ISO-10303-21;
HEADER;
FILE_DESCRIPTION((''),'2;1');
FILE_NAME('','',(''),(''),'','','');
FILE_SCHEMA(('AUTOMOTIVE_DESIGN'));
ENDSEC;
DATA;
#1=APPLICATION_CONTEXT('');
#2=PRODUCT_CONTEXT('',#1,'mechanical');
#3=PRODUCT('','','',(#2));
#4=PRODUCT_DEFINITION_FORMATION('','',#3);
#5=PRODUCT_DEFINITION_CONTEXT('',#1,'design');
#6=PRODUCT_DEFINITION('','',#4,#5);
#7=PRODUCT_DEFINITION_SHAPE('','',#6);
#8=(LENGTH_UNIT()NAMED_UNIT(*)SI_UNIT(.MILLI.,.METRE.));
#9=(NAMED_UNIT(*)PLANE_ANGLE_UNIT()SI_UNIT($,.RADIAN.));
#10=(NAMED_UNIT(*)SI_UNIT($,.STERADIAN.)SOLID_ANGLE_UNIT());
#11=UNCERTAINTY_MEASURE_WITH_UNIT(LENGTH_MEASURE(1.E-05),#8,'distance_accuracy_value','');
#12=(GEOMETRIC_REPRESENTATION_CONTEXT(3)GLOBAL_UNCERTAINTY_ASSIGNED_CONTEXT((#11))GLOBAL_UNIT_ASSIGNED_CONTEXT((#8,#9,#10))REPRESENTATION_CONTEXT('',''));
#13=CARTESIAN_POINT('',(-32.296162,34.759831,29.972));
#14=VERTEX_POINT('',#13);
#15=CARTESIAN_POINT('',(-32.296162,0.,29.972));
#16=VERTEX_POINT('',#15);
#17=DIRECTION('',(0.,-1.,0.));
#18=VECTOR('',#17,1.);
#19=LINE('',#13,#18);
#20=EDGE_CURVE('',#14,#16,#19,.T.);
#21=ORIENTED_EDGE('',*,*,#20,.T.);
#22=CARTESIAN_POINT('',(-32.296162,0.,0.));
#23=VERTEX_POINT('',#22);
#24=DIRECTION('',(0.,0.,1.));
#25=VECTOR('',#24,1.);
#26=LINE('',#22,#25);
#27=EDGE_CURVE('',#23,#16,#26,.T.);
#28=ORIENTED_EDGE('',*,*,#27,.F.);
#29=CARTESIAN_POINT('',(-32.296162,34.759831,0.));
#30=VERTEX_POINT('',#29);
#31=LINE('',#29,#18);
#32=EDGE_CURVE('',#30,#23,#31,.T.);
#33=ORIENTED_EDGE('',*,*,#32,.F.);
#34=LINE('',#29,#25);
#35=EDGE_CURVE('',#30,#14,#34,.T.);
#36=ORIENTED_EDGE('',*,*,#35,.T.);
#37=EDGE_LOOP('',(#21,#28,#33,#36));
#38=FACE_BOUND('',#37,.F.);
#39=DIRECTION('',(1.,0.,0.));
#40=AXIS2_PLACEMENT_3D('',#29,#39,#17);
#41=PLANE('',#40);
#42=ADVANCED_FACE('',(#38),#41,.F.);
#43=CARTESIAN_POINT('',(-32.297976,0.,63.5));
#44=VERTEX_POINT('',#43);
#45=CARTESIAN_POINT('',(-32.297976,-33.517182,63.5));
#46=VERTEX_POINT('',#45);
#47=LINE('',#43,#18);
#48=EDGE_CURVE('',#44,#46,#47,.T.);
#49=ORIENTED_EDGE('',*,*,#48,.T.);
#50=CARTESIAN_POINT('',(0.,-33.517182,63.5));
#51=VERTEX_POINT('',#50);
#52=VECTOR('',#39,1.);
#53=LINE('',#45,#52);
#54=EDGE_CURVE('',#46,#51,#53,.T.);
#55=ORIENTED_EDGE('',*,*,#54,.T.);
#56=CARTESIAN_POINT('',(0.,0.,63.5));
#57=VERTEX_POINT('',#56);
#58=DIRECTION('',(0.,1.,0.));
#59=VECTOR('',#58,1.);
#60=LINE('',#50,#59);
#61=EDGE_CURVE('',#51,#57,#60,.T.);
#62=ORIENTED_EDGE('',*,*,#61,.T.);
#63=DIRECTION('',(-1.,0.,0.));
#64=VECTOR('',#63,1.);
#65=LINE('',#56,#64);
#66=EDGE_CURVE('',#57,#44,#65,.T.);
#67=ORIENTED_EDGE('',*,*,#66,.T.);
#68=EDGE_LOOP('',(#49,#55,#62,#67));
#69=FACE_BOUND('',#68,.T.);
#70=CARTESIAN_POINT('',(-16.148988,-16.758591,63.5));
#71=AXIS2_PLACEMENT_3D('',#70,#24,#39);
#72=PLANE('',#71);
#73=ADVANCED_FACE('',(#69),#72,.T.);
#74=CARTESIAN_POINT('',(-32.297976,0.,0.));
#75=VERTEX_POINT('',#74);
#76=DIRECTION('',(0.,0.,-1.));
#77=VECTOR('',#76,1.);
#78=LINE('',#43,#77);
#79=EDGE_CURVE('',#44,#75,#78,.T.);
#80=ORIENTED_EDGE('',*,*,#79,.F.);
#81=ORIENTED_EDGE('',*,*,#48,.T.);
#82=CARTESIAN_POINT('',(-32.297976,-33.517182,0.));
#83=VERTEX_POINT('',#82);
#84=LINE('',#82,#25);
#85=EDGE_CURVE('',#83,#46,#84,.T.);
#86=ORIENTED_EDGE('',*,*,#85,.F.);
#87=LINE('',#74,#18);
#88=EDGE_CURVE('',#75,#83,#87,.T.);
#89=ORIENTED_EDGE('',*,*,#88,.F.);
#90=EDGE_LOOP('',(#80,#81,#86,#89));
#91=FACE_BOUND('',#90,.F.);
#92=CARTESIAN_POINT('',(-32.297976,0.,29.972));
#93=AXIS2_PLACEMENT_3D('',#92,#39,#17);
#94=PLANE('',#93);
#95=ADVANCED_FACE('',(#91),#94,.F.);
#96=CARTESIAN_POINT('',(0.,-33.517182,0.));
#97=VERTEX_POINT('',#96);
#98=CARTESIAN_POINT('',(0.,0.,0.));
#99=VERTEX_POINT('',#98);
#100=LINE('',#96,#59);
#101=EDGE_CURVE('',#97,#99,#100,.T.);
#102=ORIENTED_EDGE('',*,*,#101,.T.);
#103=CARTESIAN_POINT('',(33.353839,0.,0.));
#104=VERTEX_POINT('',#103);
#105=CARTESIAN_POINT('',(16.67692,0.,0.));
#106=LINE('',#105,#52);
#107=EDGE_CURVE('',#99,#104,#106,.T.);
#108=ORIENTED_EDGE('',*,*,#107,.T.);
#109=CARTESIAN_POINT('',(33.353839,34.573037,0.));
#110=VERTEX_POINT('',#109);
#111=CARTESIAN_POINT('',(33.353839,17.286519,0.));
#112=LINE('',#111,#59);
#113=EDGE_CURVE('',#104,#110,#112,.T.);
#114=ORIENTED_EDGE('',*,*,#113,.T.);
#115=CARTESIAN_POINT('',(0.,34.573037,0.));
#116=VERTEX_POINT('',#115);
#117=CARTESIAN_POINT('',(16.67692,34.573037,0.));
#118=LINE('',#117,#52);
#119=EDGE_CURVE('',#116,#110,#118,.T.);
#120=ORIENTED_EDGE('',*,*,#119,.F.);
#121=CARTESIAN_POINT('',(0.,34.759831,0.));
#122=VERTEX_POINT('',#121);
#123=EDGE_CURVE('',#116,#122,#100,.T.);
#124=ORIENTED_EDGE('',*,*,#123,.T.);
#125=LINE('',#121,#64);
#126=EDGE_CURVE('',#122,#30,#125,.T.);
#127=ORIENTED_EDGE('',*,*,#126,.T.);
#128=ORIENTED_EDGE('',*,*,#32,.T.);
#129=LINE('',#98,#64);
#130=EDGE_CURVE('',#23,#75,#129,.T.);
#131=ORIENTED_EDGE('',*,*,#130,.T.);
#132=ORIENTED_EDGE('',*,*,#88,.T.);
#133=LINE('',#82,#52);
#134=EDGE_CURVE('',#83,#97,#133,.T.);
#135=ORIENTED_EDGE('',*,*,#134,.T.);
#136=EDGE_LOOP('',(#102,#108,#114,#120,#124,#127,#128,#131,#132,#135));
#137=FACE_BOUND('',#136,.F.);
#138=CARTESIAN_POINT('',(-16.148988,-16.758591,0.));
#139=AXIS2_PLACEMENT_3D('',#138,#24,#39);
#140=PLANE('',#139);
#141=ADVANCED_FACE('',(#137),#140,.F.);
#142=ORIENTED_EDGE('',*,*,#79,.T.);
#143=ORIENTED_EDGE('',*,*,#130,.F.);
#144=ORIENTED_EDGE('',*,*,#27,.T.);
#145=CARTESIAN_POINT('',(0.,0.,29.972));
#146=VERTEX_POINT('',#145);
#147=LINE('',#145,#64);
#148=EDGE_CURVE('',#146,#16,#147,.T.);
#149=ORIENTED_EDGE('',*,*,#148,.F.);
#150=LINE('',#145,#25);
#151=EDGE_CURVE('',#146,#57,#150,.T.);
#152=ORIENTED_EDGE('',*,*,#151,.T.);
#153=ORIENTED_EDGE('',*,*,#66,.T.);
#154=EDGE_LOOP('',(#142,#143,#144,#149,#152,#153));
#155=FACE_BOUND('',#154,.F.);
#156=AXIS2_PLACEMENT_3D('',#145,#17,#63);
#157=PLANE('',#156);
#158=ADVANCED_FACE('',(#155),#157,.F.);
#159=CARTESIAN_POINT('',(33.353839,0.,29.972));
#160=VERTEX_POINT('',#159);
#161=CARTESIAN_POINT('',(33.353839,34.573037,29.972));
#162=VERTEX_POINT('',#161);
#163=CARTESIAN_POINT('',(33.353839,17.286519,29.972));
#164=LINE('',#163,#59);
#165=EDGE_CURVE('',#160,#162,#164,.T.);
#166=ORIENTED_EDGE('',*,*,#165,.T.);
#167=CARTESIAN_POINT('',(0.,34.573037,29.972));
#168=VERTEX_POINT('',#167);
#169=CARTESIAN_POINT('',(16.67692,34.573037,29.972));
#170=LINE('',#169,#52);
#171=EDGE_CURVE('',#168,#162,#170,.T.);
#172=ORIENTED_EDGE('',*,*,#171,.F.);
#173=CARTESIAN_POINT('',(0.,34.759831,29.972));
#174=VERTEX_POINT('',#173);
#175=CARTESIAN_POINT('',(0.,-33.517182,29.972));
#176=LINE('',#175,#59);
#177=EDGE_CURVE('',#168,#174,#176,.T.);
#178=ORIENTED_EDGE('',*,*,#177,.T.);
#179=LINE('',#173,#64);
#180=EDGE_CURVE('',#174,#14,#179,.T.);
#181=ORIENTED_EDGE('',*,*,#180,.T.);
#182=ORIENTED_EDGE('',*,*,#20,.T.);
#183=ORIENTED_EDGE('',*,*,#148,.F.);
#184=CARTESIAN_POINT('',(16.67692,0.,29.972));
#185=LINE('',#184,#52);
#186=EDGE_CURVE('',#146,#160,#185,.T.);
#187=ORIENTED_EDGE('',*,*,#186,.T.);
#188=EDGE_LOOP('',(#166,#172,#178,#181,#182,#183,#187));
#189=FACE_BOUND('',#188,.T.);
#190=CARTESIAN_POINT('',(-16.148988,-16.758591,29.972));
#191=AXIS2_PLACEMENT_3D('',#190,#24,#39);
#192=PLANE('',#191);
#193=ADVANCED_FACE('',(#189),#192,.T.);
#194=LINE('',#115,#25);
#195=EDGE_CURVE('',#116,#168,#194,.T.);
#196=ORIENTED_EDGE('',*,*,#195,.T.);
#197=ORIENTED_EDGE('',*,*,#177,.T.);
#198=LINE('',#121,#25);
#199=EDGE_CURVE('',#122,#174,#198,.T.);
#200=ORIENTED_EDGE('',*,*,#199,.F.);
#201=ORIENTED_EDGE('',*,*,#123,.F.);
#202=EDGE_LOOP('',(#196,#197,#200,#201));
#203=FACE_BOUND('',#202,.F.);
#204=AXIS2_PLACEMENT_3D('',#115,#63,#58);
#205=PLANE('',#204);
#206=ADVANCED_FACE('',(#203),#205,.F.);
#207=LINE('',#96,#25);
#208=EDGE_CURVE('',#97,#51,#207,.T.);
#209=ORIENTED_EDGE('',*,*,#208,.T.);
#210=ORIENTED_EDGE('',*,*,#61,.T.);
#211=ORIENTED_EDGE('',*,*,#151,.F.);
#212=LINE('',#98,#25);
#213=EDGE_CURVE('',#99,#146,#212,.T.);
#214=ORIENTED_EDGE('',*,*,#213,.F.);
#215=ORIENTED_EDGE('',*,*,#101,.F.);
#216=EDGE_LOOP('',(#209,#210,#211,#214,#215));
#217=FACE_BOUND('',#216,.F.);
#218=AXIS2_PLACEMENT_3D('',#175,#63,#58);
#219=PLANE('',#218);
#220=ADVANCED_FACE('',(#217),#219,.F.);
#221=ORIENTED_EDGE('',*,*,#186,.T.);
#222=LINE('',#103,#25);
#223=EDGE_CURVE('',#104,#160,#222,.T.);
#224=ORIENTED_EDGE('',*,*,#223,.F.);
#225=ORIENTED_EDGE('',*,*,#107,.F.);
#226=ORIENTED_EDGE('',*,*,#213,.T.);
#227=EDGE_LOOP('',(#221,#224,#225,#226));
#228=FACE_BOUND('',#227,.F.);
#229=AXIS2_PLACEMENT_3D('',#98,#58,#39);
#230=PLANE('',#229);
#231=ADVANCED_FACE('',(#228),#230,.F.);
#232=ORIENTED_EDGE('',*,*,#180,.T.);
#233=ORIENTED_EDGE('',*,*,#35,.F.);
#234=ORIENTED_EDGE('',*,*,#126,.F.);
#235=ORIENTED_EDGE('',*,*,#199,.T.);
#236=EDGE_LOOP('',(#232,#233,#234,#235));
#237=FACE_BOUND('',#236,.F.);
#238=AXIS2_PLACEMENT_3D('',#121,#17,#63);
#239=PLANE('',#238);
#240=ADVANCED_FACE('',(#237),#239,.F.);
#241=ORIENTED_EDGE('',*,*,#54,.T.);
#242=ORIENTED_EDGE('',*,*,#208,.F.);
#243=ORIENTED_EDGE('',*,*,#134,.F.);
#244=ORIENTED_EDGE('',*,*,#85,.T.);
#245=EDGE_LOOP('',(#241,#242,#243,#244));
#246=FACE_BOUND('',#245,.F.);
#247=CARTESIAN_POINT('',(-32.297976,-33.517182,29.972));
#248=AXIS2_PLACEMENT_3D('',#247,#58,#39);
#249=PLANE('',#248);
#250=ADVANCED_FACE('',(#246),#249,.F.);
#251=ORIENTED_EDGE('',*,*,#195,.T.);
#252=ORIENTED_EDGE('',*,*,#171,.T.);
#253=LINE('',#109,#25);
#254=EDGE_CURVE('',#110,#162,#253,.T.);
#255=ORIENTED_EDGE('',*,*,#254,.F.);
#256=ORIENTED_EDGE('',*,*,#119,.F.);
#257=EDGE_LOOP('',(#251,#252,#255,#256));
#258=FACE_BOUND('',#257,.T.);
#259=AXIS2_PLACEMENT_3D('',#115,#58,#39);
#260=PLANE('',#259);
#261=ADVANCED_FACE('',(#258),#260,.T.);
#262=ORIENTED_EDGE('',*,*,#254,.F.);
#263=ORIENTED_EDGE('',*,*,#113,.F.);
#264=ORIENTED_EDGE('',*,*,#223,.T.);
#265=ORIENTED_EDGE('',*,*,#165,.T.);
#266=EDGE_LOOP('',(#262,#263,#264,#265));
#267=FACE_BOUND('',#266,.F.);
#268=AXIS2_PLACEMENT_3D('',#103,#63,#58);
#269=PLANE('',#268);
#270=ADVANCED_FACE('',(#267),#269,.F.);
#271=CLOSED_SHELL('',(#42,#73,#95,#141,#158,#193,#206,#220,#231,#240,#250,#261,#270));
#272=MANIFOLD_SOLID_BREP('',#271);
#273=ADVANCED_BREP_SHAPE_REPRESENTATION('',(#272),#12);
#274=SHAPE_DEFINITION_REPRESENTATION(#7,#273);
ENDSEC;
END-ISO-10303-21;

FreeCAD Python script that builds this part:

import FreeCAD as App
import Part
import Sketcher
from FreeCAD import Vector

doc = App.newDocument("Part")
params = doc.addObject("Spreadsheet::Sheet", "Params")
for row, (alias, value) in enumerate([
    ("pad1_length", "1.18 in"),
    ("pad2_length", "1.32 in"),
], start=1):
    params.set(f"A{row}", alias)
    params.set(f"B{row}", "=" + value)
    params.setAlias(f"B{row}", alias)

body = doc.addObject("PartDesign::Body", "Body")

# Sketch on XY plane
sketch1 = body.newObject("Sketcher::SketchObject", "Sketch")
sketch1.AttachmentSupport = (doc.getObject("XY_Plane"), [""])
sketch1.MapMode = "FlatFace"
sketch1.addGeometry([
    Part.LineSegment(Vector(0, -33.517182, 0), Vector(0, 0, 0)),  # 0
    Part.LineSegment(Vector(0, 0, 0), Vector(33.353839, 0, 0)),  # 1
    Part.LineSegment(Vector(33.353839, 0, 0), Vector(33.353839, 34.573037, 0)),  # 2
    Part.LineSegment(Vector(33.353839, 34.573037, 0), Vector(0, 34.573037, 0)),  # 3
    Part.LineSegment(Vector(0, 34.573037, 0), Vector(0, 34.759831, 0)),  # 4
    Part.LineSegment(Vector(0, 34.759831, 0), Vector(-32.296162, 34.759831, 0)),  # 5
    Part.LineSegment(Vector(-32.296162, 34.759831, 0), Vector(-32.296162, 0, 0)),  # 6
    Part.LineSegment(Vector(-32.296162, 0, 0), Vector(-32.297976, 0, 0)),  # 7
    Part.LineSegment(Vector(-32.297976, 0, 0), Vector(-32.297976, -33.517182, 0)),  # 8
    Part.LineSegment(Vector(-32.297976, -33.517182, 0), Vector(0, -33.517182, 0)),  # 9
], False)
sketch1.addConstraint([
    Sketcher.Constraint("Coincident", 0, 2, 1, 1),
    Sketcher.Constraint("Coincident", 1, 2, 2, 1),
    Sketcher.Constraint("Coincident", 2, 2, 3, 1),
    Sketcher.Constraint("Coincident", 3, 2, 4, 1),
    Sketcher.Constraint("Coincident", 4, 2, 5, 1),
    Sketcher.Constraint("Coincident", 5, 2, 6, 1),
    Sketcher.Constraint("Coincident", 6, 2, 7, 1),
    Sketcher.Constraint("Coincident", 7, 2, 8, 1),
    Sketcher.Constraint("Coincident", 8, 2, 9, 1),
    Sketcher.Constraint("Coincident", 9, 2, 0, 1),
    Sketcher.Constraint("Vertical", 0),
    Sketcher.Constraint("Horizontal", 1),
    Sketcher.Constraint("Vertical", 2),
    Sketcher.Constraint("Horizontal", 3),
    Sketcher.Constraint("Vertical", 4),
    Sketcher.Constraint("Horizontal", 5),
    Sketcher.Constraint("Vertical", 6),
    Sketcher.Constraint("Horizontal", 7),
    Sketcher.Constraint("Vertical", 8),
    Sketcher.Constraint("Horizontal", 9),
    Sketcher.Constraint("Coincident", 0, 2, -1, 1),
    Sketcher.Constraint("PointOnObject", 3, 2, -2),
    Sketcher.Constraint("PointOnObject", 6, 2, -1),
    Sketcher.Constraint("DistanceX", 1, 1, 1, 2, 33.353839),
    Sketcher.Constraint("DistanceY", 0, 1, 0, 2, 33.517182),
    Sketcher.Constraint("DistanceY", 6, 2, 6, 1, 34.759831),
    Sketcher.Constraint("DistanceX", 5, 2, 2, 2, 65.650001),
    Sketcher.Constraint("DistanceX", 7, 2, 7, 1, 0.001814),
    Sketcher.Constraint("DistanceY", 2, 1, 2, 2, 34.573037),
])
pad1 = body.newObject("PartDesign::Pad", "Pad")
pad1.Profile = sketch1
pad1.setExpression("Length", "Params.pad1_length")

# Sketch on XY plane
sketch2 = body.newObject("Sketcher::SketchObject", "Sketch001")
sketch2.AttachmentSupport = (doc.getObject("XY_Plane"), [""])
sketch2.MapMode = "FlatFace"
sketch2.AttachmentOffset = App.Placement(Vector(0, 0, 1.18 * 25.4), App.Rotation())
sketch2.addGeometry([
    Part.LineSegment(Vector(-32, 0, 0), Vector(-32, -34, 0)),
    Part.LineSegment(Vector(-32, -34, 0), Vector(0, -34, 0)),
    Part.LineSegment(Vector(0, -34, 0), Vector(0, 0, 0)),
    Part.LineSegment(Vector(0, 0, 0), Vector(-32, 0, 0)),
], False)
sketch2.addConstraint([
    Sketcher.Constraint("Coincident", 0, 2, 1, 1),
    Sketcher.Constraint("Coincident", 1, 2, 2, 1),
    Sketcher.Constraint("Coincident", 2, 2, 3, 1),
    Sketcher.Constraint("Coincident", 3, 2, 0, 1),
    Sketcher.Constraint("Vertical", 0),
    Sketcher.Constraint("Horizontal", 1),
    Sketcher.Constraint("Vertical", 2),
    Sketcher.Constraint("Horizontal", 3),
    Sketcher.Constraint("Coincident", 2, 2, -1, 1),
    Sketcher.Constraint("DistanceY", 0, 2, 0, 1, 33.517182),
    Sketcher.Constraint("DistanceX", 1, 1, 1, 2, 32.297976),
])
pad2 = body.newObject("PartDesign::Pad", "Pad001")
pad2.Profile = sketch2
pad2.setExpression("Length", "Params.pad2_length")

doc.recompute()
